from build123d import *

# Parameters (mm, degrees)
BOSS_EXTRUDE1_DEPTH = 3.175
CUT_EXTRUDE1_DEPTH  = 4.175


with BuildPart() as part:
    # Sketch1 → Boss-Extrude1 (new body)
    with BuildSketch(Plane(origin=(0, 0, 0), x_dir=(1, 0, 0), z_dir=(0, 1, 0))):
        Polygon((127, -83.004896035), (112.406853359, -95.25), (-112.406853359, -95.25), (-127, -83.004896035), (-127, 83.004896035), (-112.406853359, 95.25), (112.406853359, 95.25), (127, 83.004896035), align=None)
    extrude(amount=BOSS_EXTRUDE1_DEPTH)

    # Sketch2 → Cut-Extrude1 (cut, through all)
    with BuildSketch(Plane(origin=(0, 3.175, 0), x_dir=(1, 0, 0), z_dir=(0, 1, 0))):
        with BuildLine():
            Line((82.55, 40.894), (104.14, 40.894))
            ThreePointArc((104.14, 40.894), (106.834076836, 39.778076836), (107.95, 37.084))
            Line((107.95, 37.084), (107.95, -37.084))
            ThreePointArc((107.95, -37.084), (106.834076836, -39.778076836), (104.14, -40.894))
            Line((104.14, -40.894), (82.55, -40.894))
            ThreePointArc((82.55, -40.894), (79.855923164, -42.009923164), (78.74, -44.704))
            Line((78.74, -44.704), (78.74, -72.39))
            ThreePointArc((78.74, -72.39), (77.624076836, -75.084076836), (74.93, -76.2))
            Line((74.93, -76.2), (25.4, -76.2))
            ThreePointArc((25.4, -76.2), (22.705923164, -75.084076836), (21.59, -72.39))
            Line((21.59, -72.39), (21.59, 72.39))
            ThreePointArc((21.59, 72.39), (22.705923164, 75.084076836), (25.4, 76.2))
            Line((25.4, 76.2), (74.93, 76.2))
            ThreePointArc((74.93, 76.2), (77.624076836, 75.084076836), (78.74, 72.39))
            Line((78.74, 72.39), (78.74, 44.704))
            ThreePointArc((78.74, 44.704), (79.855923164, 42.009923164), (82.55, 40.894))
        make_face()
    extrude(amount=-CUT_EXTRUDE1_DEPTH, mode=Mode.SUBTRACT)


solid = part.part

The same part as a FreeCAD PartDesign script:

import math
import FreeCAD as App
import Part
import Sketcher
from FreeCAD import Vector
Q = App.Units.Quantity


def add_polygon(sketch, points):
    """Adds a closed chain of lines whose ends are joined by coincident constraints."""
    first, n = sketch.GeometryCount, len(points)
    for a, b in zip(points, points[1:] + points[:1]):
        sketch.addGeometry(Part.LineSegment(App.Vector(*a, 0), App.Vector(*b, 0)), False)
    for i in range(n):
        sketch.addConstraint(Sketcher.Constraint("Coincident", first + i, 2, first + (i + 1) % n, 1))

doc = App.newDocument("Part")
params = doc.addObject("Spreadsheet::Sheet", "Params")
for row, (alias, value) in enumerate([
    ("sketch1_length", "0.75 in"),
    ("pad1_length", "0.125 in"),
    ("sketch2_radius", "0.15 in"),
    ("sketch2_height", "5.7 in"),
    ("sketch2_width", "1.95 in"),
    ("sketch2_height2", "1.09 in"),
], start=1):
    params.set(f"A{row}", alias)
    params.set(f"B{row}", "=" + value)
    params.setAlias(f"B{row}", alias)

body = doc.addObject("PartDesign::Body", "Body")

sketch1 = body.newObject("Sketcher::SketchObject", "Sketch")
sketch1.AttachmentSupport = (doc.getObject("XZ_Plane"), [""])
sketch1.MapMode = "FlatFace"
add_polygon(sketch1, [(112, 95), (127, 83), (127, -83), (112, -95), (-112, -95), (-127, -83), (-127, 83), (-112, 95)])
sketch1.addConstraint(Sketcher.Constraint("Vertical", 1))
sketch1.addConstraint(Sketcher.Constraint("Horizontal", 3))
sketch1.addConstraint(Sketcher.Constraint("Vertical", 5))
sketch1.addConstraint(Sketcher.Constraint("Horizontal", 7))
sketch1.addConstraint(Sketcher.Constraint("Symmetric", 0, 2, 4, 2, -1, 1))
sketch1.addConstraint(Sketcher.Constraint("Symmetric", 2, 2, 6, 2, -1, 1))
sketch1.addConstraint(Sketcher.Constraint("Parallel", 0, 4))
sketch1.addConstraint(Sketcher.Constraint("Parallel", 2, 6))
sketch1.addConstraint(Sketcher.Constraint("Horizontal", 1, 2, 4, 2))
sketch1.addConstraint(Sketcher.Constraint("Vertical", 3, 2, 6, 2))
sketch1.addConstraint(Sketcher.Constraint("DistanceX", -1, 1, 0, 2, Q("5 in")))
sketch1.addConstraint(Sketcher.Constraint("Angle", 0, Q("-40 deg")))
sketch1.addConstraint(Sketcher.Constraint("DistanceY", 3, 2, 6, 2, Q("7.5 in")))
sketch1.addConstraint(Sketcher.Constraint("Distance", 0, Q("0.75 in")))
sketch1.setExpression("Constraints[21]", "Params.sketch1_length")
pad1 = body.newObject("PartDesign::Pad", "Pad")
pad1.Profile = sketch1
pad1.setExpression("Length", "Params.pad1_length")
pad1.Reversed = True

sketch2 = body.newObject("Sketcher::SketchObject", "Sketch001")
sketch2.AttachmentSupport = (doc.getObject("XZ_Plane"), [""])
sketch2.MapMode = "FlatFace"
sketch2.AttachmentOffset = App.Placement(Vector(0, 0, -0.125 * 25.4), App.Rotation())
sketch2.addGeometry(Part.LineSegment(Vector(104.1, -40.9, 0), Vector(82.5, -40.9, 0)), False)
sketch2.addGeometry(Part.ArcOfCircle(Part.Circle(Vector(82.6, -44.7, 0), Vector(0, 0, 1), 3.8), math.radians(90), math.radians(180)), False)
sketch2.addGeometry(Part.LineSegment(Vector(78.7, -44.7, 0), Vector(78.7, -72.4, 0)), False)
sketch2.addGeometry(Part.ArcOfCircle(Part.Circle(Vector(74.9, -72.4, 0), Vector(0, 0, 1), 3.8), math.radians(-90), math.radians(0)), False)
sketch2.addGeometry(Part.LineSegment(Vector(74.9, -76.2, 0), Vector(25.4, -76.2, 0)), False)
sketch2.addGeometry(Part.ArcOfCircle(Part.Circle(Vector(25.4, -72.4, 0), Vector(0, 0, 1), 3.8), math.radians(-180), math.radians(-90)), False)
sketch2.addGeometry(Part.LineSegment(Vector(21.6, -72.4, 0), Vector(21.6, 72.4, 0)), False)
sketch2.addGeometry(Part.ArcOfCircle(Part.Circle(Vector(25.4, 72.4, 0), Vector(0, 0, 1), 3.8), math.radians(90), math.radians(180)), False)
sketch2.addGeometry(Part.LineSegment(Vector(25.4, 76.2, 0), Vector(74.9, 76.2, 0)), False)
sketch2.addGeometry(Part.ArcOfCircle(Part.Circle(Vector(74.9, 72.4, 0), Vector(0, 0, 1), 3.8), math.radians(0), math.radians(90)), False)
sketch2.addGeometry(Part.LineSegment(Vector(78.7, 72.4, 0), Vector(78.7, 44.7, 0)), False)
sketch2.addGeometry(Part.ArcOfCircle(Part.Circle(Vector(82.6, 44.7, 0), Vector(0, 0, 1), 3.8), math.radians(-180), math.radians(-90)), False)
sketch2.addGeometry(Part.LineSegment(Vector(82.5, 40.9, 0), Vector(104.1, 40.9, 0)), False)
sketch2.addGeometry(Part.ArcOfCircle(Part.Circle(Vector(104.1, 37.1, 0), Vector(0, 0, 1), 3.8), math.radians(0), math.radians(90)), False)
sketch2.addGeometry(Part.LineSegment(Vector(108, 37.1, 0), Vector(108, -37.1, 0)), False)
sketch2.addGeometry(Part.ArcOfCircle(Part.Circle(Vector(104.1, -37.1, 0), Vector(0, 0, 1), 3.8), math.radians(-90), math.radians(0)), False)
sketch2.addConstraint(Sketcher.Constraint("Tangent", 0, 2, 1, 1))
sketch2.addConstraint(Sketcher.Constraint("Tangent", 1, 2, 2, 1))
sketch2.addConstraint(Sketcher.Constraint("Tangent", 2, 2, 3, 2))
sketch2.addConstraint(Sketcher.Constraint("Tangent", 3, 1, 4, 1))
sketch2.addConstraint(Sketcher.Constraint("Tangent", 4, 2, 5, 2))
sketch2.addConstraint(Sketcher.Constraint("Tangent", 5, 1, 6, 1))
sketch2.addConstraint(Sketcher.Constraint("Tangent", 6, 2, 7, 2))
sketch2.addConstraint(Sketcher.Constraint("Tangent", 7, 1, 8, 1))
sketch2.addConstraint(Sketcher.Constraint("Tangent", 8, 2, 9, 2))
sketch2.addConstraint(Sketcher.Constraint("Tangent", 9, 1, 10, 1))
sketch2.addConstraint(Sketcher.Constraint("Tangent", 10, 2, 11, 1))
sketch2.addConstraint(Sketcher.Constraint("Tangent", 11, 2, 12, 1))
sketch2.addConstraint(Sketcher.Constraint("Tangent", 12, 2, 13, 2))
sketch2.addConstraint(Sketcher.Constraint("Tangent", 13, 1, 14, 1))
sketch2.addConstraint(Sketcher.Constraint("Tangent", 14, 2, 15, 2))
sketch2.addConstraint(Sketcher.Constraint("Tangent", 15, 1, 0, 1))
sketch2.addConstraint(Sketcher.Constraint("Horizontal", 0))
sketch2.addConstraint(Sketcher.Constraint("Vertical", 2))
sketch2.addConstraint(Sketcher.Constraint("Horizontal", 4))
sketch2.addConstraint(Sketcher.Constraint("Vertical", 6))
sketch2.addConstraint(Sketcher.Constraint("Horizontal", 8))
sketch2.addConstraint(Sketcher.Constraint("Vertical", 10))
sketch2.addConstraint(Sketcher.Constraint("Horizontal", 12))
sketch2.addConstraint(Sketcher.Constraint("Vertical", 14))
sketch2.addConstraint(Sketcher.Constraint("Equal", 1, 3))
sketch2.addConstraint(Sketcher.Constraint("Equal", 3, 5))
sketch2.addConstraint(Sketcher.Constraint("Equal", 5, 7))
sketch2.addConstraint(Sketcher.Constraint("Equal", 7, 9))
sketch2.addConstraint(Sketcher.Constraint("Equal", 9, 11))
sketch2.addConstraint(Sketcher.Constraint("Equal", 11, 13))
sketch2.addConstraint(Sketcher.Constraint("Equal", 13, 15))
sketch2.addConstraint(Sketcher.Constraint("Symmetric", 3, 3, 9, 3, -1))
sketch2.addConstraint(Sketcher.Constraint("Equal", 2, 10))
sketch2.addConstraint(Sketcher.Constraint("Radius", 1, Q("0.15 in")))
sketch2.addConstraint(Sketcher.Constraint("DistanceY", 6, 1, 6, 2, Q("5.7 in")))
sketch2.addConstraint(Sketcher.Constraint("DistanceX", -1, 1, 5, 3, Q("1 in")))
sketch2.addConstraint(Sketcher.Constraint("DistanceX", 1, 2, 15, 3, Q("1 in")))
sketch2.addConstraint(Sketcher.Constraint("DistanceX", 4, 2, 4, 1, Q("1.95 in")))
sketch2.addConstraint(Sketcher.Constraint("DistanceY", 2, 2, 2, 1, Q("1.09 in")))
sketch2.setExpression("Constraints[33]", "Params.sketch2_radius")
sketch2.setExpression("Constraints[34]", "Params.sketch2_height")
sketch2.setExpression("Constraints[37]", "Params.sketch2_width")
sketch2.setExpression("Constraints[38]", "Params.sketch2_height2")
pocket1 = body.newObject("PartDesign::Pocket", "Pocket")
pocket1.Profile = sketch2
pocket1.Type = "ThroughAll"
pocket1.Reversed = True

doc.recompute()
